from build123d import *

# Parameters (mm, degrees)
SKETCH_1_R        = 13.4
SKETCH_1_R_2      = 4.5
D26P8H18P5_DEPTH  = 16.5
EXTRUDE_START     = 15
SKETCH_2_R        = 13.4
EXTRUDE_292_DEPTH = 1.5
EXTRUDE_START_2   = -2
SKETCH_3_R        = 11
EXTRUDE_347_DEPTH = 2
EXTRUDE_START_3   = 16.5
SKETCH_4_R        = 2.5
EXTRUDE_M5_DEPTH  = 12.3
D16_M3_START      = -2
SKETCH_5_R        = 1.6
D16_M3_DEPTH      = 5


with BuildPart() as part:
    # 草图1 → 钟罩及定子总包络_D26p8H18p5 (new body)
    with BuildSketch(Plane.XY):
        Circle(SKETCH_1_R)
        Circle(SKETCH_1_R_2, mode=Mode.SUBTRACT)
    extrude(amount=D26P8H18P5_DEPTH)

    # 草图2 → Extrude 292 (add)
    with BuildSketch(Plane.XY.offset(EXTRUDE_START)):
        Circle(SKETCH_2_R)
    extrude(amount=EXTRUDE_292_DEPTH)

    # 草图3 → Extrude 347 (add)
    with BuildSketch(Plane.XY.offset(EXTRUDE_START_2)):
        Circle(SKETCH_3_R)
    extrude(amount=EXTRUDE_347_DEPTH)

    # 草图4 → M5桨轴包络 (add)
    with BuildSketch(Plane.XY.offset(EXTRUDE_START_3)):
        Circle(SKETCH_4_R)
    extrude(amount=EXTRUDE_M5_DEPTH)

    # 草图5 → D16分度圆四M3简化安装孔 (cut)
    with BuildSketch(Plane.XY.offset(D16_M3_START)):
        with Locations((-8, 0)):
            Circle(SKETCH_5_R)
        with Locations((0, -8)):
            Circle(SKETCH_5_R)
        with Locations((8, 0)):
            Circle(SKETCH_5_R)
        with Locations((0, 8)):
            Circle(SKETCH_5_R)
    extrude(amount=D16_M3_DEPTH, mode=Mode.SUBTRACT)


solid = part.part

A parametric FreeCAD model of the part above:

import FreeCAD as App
import Part
import Sketcher

doc = App.newDocument("Part")
params = doc.addObject("Spreadsheet::Sheet", "Params")
for row, (alias, value) in enumerate([
    ("sketch1_diameter", "9 mm"),
    ("sketch1_diameter2", "26.8 mm"),
    ("pad1_length", "16.5 mm"),
    ("sketch2_diameter", "26.8 mm"),
    ("pad2_length", "1.5 mm"),
    ("sketch3_diameter", "22 mm"),
    ("pad3_length", "2 mm"),
    ("sketch4_diameter", "5 mm"),
    ("pad4_length", "12.3 mm"),
    ("sketch5_diameter", "3.2 mm"),
    ("pocket1_length", "5 mm"),
], start=1):
    params.set(f"A{row}", alias)
    params.set(f"B{row}", "=" + value)
    params.setAlias(f"B{row}", alias)

body = doc.addObject("PartDesign::Body", "Body")

sketch1 = body.newObject("Sketcher::SketchObject", "Sketch")
sketch1.AttachmentSupport = (doc.getObject("XY_Plane"), [""])
sketch1.MapMode = "FlatFace"
sketch1.addGeometry([
    Part.Circle(App.Vector(0, 0, 0), App.Vector(0, 0, 1), 13.4),
    Part.Circle(App.Vector(0, 0, 0), App.Vector(0, 0, 1), 4.5),
], False)
sketch1.addConstraint([
    Sketcher.Constraint("Coincident", 0, 3, -1, 1),
    Sketcher.Constraint("Coincident", 1, 3, -1, 1),
    Sketcher.Constraint("Diameter", 1, 9.0),
    Sketcher.Constraint("Diameter", 0, 26.8),
])
sketch1.setExpression("Constraints[2]", "Params.sketch1_diameter")
sketch1.setExpression("Constraints[3]", "Params.sketch1_diameter2")
pad1 = body.newObject("PartDesign::Pad", "Pad")
pad1.Profile = sketch1
pad1.setExpression("Length", "Params.pad1_length")

sketch2 = body.newObject("Sketcher::SketchObject", "Sketch001")
sketch2.AttachmentSupport = (doc.getObject("XY_Plane"), [""])
sketch2.MapMode = "FlatFace"
sketch2.AttachmentOffset = App.Placement(App.Vector(0, 0, 15), App.Rotation())
sketch2.addGeometry(Part.Circle(App.Vector(0, 0, 0), App.Vector(0, 0, 1), 13), False)
sketch2.addConstraint([
    Sketcher.Constraint("Coincident", 0, 3, -1, 1),
    Sketcher.Constraint("Diameter", 0, 26.8),
])
sketch2.setExpression("Constraints[1]", "Params.sketch2_diameter")
pad2 = body.newObject("PartDesign::Pad", "Pad001")
pad2.Profile = sketch2
pad2.setExpression("Length", "Params.pad2_length")

sketch3 = body.newObject("Sketcher::SketchObject", "Sketch002")
sketch3.AttachmentSupport = (doc.getObject("XY_Plane"), [""])
sketch3.MapMode = "FlatFace"
sketch3.AttachmentOffset = App.Placement(App.Vector(0, 0, -2), App.Rotation())
sketch3.addGeometry(Part.Circle(App.Vector(0, 0, 0), App.Vector(0, 0, 1), 11), False)
sketch3.addConstraint([
    Sketcher.Constraint("Coincident", 0, 3, -1, 1),
    Sketcher.Constraint("Diameter", 0, 22.0),
])
sketch3.setExpression("Constraints[1]", "Params.sketch3_diameter")
pad3 = body.newObject("PartDesign::Pad", "Pad002")
pad3.Profile = sketch3
pad3.setExpression("Length", "Params.pad3_length")

sketch4 = body.newObject("Sketcher::SketchObject", "Sketch003")
sketch4.AttachmentSupport = (doc.getObject("XY_Plane"), [""])
sketch4.MapMode = "FlatFace"
sketch4.AttachmentOffset = App.Placement(App.Vector(0, 0, 16.5), App.Rotation())
sketch4.addGeometry(Part.Circle(App.Vector(0, 0, 0), App.Vector(0, 0, 1), 2.5), False)
sketch4.addConstraint([
    Sketcher.Constraint("Coincident", 0, 3, -1, 1),
    Sketcher.Constraint("Diameter", 0, 5.0),
])
sketch4.setExpression("Constraints[1]", "Params.sketch4_diameter")
pad4 = body.newObject("PartDesign::Pad", "Pad003")
pad4.Profile = sketch4
pad4.setExpression("Length", "Params.pad4_length")

sketch5 = body.newObject("Sketcher::SketchObject", "Sketch004")
sketch5.AttachmentSupport = (doc.getObject("XY_Plane"), [""])
sketch5.MapMode = "FlatFace"
sketch5.AttachmentOffset = App.Placement(App.Vector(0, 0, -2), App.Rotation())
sketch5.addGeometry([
    Part.Circle(App.Vector(-8, 0, 0), App.Vector(0, 0, 1), 1.6),
    Part.Circle(App.Vector(0, -8, 0), App.Vector(0, 0, 1), 1.6),
    Part.Circle(App.Vector(8, 0, 0), App.Vector(0, 0, 1), 1.6),
    Part.Circle(App.Vector(0, 8, 0), App.Vector(0, 0, 1), 1.6),
], False)
sketch5.addConstraint([
    Sketcher.Constraint("Equal", 0, 1),
    Sketcher.Constraint("Equal", 1, 2),
    Sketcher.Constraint("Equal", 2, 3),
    Sketcher.Constraint("Symmetric", 0, 3, 2, 3, -1, 1),
    Sketcher.Constraint("Symmetric", 1, 3, 3, 3, -1, 1),
    Sketcher.Constraint("PointOnObject", 0, 3, -1),
    Sketcher.Constraint("PointOnObject", 1, 3, -2),
    Sketcher.Constraint("Diameter", 0, 3.2),
    Sketcher.Constraint("DistanceX", 0, 3, -1, 1, 8.0),
    Sketcher.Constraint("DistanceY", 1, 3, -1, 1, 8.0),
])
sketch5.setExpression("Constraints[7]", "Params.sketch5_diameter")
pocket1 = body.newObject("PartDesign::Pocket", "Pocket")
pocket1.Profile = sketch5
pocket1.setExpression("Length", "Params.pocket1_length")
pocket1.Reversed = True

doc.recompute()
